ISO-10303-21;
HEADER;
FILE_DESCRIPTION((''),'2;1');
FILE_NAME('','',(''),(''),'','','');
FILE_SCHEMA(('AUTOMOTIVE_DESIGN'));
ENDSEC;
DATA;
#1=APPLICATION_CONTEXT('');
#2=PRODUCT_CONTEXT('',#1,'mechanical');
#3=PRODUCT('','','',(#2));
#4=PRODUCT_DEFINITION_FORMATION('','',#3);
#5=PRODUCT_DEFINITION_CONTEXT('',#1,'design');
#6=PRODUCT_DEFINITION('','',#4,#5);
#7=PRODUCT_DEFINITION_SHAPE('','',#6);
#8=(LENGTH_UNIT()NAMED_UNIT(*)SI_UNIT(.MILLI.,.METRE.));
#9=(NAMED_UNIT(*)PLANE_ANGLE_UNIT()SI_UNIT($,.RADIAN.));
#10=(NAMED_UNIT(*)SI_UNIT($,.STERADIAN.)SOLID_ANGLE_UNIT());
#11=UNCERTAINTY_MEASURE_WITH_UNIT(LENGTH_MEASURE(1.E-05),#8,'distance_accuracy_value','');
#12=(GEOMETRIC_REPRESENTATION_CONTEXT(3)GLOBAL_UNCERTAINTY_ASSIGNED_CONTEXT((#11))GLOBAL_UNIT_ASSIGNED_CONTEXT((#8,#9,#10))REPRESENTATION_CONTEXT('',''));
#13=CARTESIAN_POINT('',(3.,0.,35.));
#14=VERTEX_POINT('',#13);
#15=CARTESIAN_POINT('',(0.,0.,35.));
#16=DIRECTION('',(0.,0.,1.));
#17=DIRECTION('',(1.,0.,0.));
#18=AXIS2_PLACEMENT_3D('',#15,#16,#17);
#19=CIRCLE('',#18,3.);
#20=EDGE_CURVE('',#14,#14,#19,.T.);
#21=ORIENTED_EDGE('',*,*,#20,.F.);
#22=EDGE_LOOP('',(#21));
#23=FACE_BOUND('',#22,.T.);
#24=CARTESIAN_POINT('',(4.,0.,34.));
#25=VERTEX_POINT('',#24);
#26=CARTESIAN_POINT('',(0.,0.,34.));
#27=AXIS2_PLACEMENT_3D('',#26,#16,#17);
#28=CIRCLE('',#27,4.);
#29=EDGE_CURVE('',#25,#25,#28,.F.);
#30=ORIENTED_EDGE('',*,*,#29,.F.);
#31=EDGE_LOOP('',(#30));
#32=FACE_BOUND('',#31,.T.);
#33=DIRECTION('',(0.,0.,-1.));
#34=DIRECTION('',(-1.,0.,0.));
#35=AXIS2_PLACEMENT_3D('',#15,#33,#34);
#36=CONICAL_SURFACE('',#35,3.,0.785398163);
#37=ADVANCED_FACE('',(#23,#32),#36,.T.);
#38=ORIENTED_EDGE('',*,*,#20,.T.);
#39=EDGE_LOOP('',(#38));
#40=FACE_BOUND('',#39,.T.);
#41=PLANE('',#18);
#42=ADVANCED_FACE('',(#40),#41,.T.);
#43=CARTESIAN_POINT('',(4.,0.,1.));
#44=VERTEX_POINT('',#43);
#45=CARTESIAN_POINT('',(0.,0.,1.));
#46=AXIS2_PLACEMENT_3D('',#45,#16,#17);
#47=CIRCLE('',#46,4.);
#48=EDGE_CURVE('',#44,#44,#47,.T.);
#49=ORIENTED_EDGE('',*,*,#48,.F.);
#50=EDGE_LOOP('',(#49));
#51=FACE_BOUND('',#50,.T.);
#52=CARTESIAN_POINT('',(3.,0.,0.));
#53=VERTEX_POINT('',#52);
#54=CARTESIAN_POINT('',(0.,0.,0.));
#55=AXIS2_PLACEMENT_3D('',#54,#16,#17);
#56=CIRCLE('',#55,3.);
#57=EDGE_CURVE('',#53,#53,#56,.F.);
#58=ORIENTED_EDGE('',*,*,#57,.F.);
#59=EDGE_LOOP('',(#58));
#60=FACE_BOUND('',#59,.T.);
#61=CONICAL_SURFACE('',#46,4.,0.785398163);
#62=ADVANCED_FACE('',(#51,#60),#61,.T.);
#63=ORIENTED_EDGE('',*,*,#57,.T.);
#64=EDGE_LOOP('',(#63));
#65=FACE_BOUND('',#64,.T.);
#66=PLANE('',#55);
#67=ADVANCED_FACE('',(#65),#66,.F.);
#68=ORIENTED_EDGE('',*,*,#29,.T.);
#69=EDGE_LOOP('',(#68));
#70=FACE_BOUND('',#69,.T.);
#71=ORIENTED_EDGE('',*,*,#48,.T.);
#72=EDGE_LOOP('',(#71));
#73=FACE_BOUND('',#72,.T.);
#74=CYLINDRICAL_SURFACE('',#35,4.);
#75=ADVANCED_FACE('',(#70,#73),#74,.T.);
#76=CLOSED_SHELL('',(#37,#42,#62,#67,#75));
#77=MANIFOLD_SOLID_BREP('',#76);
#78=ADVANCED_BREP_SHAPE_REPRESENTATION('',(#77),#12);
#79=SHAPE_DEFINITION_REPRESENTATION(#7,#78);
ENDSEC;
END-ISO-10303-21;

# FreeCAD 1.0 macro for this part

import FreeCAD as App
import Part
import Sketcher
from FreeCAD import Vector
Q = App.Units.Quantity


def edges_at(feature, points):
    """Names of the edges that pass closest to the given points."""
    edges = feature.Shape.Edges
    near = lambda p: min(range(len(edges)), key=lambda i: edges[i].distToShape(Part.Vertex(*p))[0])
    return sorted({f"Edge{near(p) + 1}" for p in points})

doc = App.newDocument("Part")
body = doc.addObject("PartDesign::Body", "Body")

# Sketch on XY plane
sketch1 = body.newObject("Sketcher::SketchObject", "Sketch")
sketch1.AttachmentSupport = (doc.getObject("XY_Plane"), [""])
sketch1.MapMode = "FlatFace"
sketch1.addGeometry(Part.Circle(Vector(0, 0, 0), Vector(0, 0, 1), 4), False)
sketch1.addConstraint(Sketcher.Constraint("Coincident", 0, 3, -1, 1))
sketch1.addConstraint(Sketcher.Constraint("Diameter", 0, Q("8 mm")))
pad1 = body.newObject("PartDesign::Pad", "Pad")
pad1.Profile = sketch1
pad1.Length = 35
doc.recompute()

chamfer = body.newObject("PartDesign::Chamfer", "Chamfer")
chamfer.Base = (pad1, edges_at(pad1, [(-4, 0, 0), (-4, 0, 35)]))
chamfer.Size = 1

doc.recompute()
